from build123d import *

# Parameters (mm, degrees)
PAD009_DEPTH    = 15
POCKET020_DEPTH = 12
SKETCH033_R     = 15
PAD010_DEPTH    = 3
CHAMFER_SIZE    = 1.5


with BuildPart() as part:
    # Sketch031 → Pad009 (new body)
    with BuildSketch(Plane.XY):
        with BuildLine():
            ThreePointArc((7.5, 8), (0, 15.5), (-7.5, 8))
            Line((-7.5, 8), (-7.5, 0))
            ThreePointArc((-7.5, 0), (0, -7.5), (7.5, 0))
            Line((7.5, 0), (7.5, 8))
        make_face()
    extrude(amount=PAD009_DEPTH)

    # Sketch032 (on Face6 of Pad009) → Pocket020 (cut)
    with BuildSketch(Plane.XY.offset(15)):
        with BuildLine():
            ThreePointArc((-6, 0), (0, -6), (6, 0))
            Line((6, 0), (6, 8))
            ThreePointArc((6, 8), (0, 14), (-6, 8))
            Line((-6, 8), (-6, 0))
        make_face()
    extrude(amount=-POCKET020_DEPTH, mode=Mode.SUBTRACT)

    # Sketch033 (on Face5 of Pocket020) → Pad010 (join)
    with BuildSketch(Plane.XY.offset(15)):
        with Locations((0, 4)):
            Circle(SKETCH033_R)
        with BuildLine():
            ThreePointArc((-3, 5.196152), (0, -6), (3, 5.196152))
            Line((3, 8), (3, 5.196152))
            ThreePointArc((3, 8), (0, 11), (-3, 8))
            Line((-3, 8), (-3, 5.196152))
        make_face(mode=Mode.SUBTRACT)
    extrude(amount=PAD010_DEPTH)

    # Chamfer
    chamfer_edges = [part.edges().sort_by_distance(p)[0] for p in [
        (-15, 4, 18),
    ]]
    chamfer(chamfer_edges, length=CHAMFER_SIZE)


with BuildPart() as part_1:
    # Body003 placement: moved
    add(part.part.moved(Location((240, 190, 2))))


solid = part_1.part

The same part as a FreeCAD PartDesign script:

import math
import FreeCAD as App
import Part
import Sketcher
from FreeCAD import Vector
Q = App.Units.Quantity


def edges_at(feature, points):
    """Names of the edges that pass closest to the given points."""
    edges = feature.Shape.Edges
    near = lambda p: min(range(len(edges)), key=lambda i: edges[i].distToShape(Part.Vertex(*p))[0])
    return sorted({f"Edge{near(p) + 1}" for p in points})

doc = App.newDocument("Part")
body = doc.addObject("PartDesign::Body", "Body")

sketch1 = doc.addObject("Sketcher::SketchObject", "Sketch")
body.addObject(sketch1)
sketch1.AttachmentSupport = (doc.XY_Plane, [""])
sketch1.MapMode = "FlatFace"
sketch1.addGeometry([
    Part.ArcOfCircle(Part.Circle(Vector(0, 8, 0), Vector(0, 0, 1), 8), math.radians(0), math.radians(180)),
    Part.LineSegment(Vector(-8, 8, 0), Vector(-8, 0, 0)),
    Part.ArcOfCircle(Part.Circle(Vector(0, 0, 0), Vector(0, 0, 1), 8), math.radians(180), math.radians(360)),
    Part.LineSegment(Vector(8, 0, 0), Vector(8, 8, 0)),
], False)
sketch1.addConstraint([
    Sketcher.Constraint("Tangent", 0, 2, 1, 1),
    Sketcher.Constraint("Tangent", 1, 2, 2, 1),
    Sketcher.Constraint("Tangent", 2, 2, 3, 1),
    Sketcher.Constraint("Tangent", 3, 2, 0, 1),
    Sketcher.Constraint("Vertical", 1),
    Sketcher.Constraint("Vertical", 3),
    Sketcher.Constraint("Coincident", 2, 3, -1, 1),
    Sketcher.Constraint("Radius", 0, Q("7.5 mm")),
    Sketcher.Constraint("DistanceY", 1, 2, 1, 1, Q("8 mm")),
])
pad1 = doc.addObject("PartDesign::Pad", "Pad")
body.addObject(pad1)
pad1.Profile = sketch1
pad1.Length = 15

sketch2 = doc.addObject("Sketcher::SketchObject", "Sketch001")
body.addObject(sketch2)
sketch2.AttachmentSupport = (doc.XY_Plane, [""])
sketch2.MapMode = "FlatFace"
sketch2.AttachmentOffset = App.Placement(Vector(0, 0, 15), App.Rotation())
sketch2.addGeometry([
    Part.ArcOfCircle(Part.Circle(Vector(0, 0, 0), Vector(0, 0, 1), 6), math.radians(180), math.radians(360)),
    Part.LineSegment(Vector(6, 0, 0), Vector(6, 8, 0)),
    Part.ArcOfCircle(Part.Circle(Vector(0, 8, 0), Vector(0, 0, 1), 6), math.radians(0), math.radians(180)),
    Part.LineSegment(Vector(-6, 8, 0), Vector(-6, 0, 0)),
], False)
sketch2.addConstraint([
    Sketcher.Constraint("Tangent", 0, 2, 1, 1),
    Sketcher.Constraint("Tangent", 1, 2, 2, 1),
    Sketcher.Constraint("Tangent", 2, 2, 3, 1),
    Sketcher.Constraint("Tangent", 3, 2, 0, 1),
    Sketcher.Constraint("Vertical", 1),
    Sketcher.Constraint("Vertical", 3),
    Sketcher.Constraint("Coincident", 0, 3, -1, 1),
    Sketcher.Constraint("Radius", 0, Q("6 mm")),
    Sketcher.Constraint("DistanceY", 1, 1, 1, 2, Q("8 mm")),
])
pocket1 = doc.addObject("PartDesign::Pocket", "Pocket")
body.addObject(pocket1)
pocket1.Profile = sketch2
pocket1.Length = 12

sketch3 = doc.addObject("Sketcher::SketchObject", "Sketch002")
body.addObject(sketch3)
sketch3.AttachmentSupport = (doc.XY_Plane, [""])
sketch3.MapMode = "FlatFace"
sketch3.AttachmentOffset = App.Placement(Vector(0, 0, 15), App.Rotation())
sketch3.addGeometry([
    Part.Circle(Vector(0, 4, 0), Vector(0, 0, 1), 15),
    Part.ArcOfCircle(Part.Circle(Vector(0, 0, 0), Vector(0, 0, 1), 6), math.radians(120), math.radians(420)),
    Part.LineSegment(Vector(-3, 5.2, 0), Vector(-3, 8, 0)),
    Part.ArcOfCircle(Part.Circle(Vector(0, 8, 0), Vector(0, 0, 1), 3), math.radians(0), math.radians(180)),
    Part.LineSegment(Vector(3, 8, 0), Vector(3, 5.2, 0)),
], False)
sketch3.addConstraint([
    Sketcher.Constraint("Coincident", 1, 1, 2, 1),
    Sketcher.Constraint("Tangent", 2, 2, 3, 2),
    Sketcher.Constraint("Tangent", 3, 1, 4, 1),
    Sketcher.Constraint("Coincident", 4, 2, 1, 2),
    Sketcher.Constraint("Vertical", 2),
    Sketcher.Constraint("Vertical", 4),
    Sketcher.Constraint("Coincident", 1, 3, -1, 1),
    Sketcher.Constraint("PointOnObject", 0, 3, -2),
    Sketcher.Constraint("PointOnObject", 3, 3, -2),
    Sketcher.Constraint("Diameter", 0, Q("30 mm")),
    Sketcher.Constraint("Radius", 1, Q("6 mm")),
    Sketcher.Constraint("Radius", 3, Q("3 mm")),
    Sketcher.Constraint("DistanceY", -1, 1, 0, 3, Q("4 mm")),
    Sketcher.Constraint("DistanceY", -1, 1, 3, 3, Q("8 mm")),
])
pad2 = doc.addObject("PartDesign::Pad", "Pad001")
body.addObject(pad2)
pad2.Profile = sketch3
pad2.Length = 3
doc.recompute()

chamfer = doc.addObject("PartDesign::Chamfer", "Chamfer")
body.addObject(chamfer)
chamfer.Base = (pad2, edges_at(pad2, [(-15, 4, 18)]))
chamfer.Size = 1.5
body2 = doc.addObject("PartDesign::Body", "Body001")
doc.recompute()

body.Placement = App.Placement(Vector(240, 190, 2), App.Rotation(Vector(0, 0, 1), 0))
boolean = doc.addObject("PartDesign::Boolean", "Boolean")
body2.addObject(boolean)
boolean.Type = "Fuse"
boolean.addObjects([body])

doc.recompute()
